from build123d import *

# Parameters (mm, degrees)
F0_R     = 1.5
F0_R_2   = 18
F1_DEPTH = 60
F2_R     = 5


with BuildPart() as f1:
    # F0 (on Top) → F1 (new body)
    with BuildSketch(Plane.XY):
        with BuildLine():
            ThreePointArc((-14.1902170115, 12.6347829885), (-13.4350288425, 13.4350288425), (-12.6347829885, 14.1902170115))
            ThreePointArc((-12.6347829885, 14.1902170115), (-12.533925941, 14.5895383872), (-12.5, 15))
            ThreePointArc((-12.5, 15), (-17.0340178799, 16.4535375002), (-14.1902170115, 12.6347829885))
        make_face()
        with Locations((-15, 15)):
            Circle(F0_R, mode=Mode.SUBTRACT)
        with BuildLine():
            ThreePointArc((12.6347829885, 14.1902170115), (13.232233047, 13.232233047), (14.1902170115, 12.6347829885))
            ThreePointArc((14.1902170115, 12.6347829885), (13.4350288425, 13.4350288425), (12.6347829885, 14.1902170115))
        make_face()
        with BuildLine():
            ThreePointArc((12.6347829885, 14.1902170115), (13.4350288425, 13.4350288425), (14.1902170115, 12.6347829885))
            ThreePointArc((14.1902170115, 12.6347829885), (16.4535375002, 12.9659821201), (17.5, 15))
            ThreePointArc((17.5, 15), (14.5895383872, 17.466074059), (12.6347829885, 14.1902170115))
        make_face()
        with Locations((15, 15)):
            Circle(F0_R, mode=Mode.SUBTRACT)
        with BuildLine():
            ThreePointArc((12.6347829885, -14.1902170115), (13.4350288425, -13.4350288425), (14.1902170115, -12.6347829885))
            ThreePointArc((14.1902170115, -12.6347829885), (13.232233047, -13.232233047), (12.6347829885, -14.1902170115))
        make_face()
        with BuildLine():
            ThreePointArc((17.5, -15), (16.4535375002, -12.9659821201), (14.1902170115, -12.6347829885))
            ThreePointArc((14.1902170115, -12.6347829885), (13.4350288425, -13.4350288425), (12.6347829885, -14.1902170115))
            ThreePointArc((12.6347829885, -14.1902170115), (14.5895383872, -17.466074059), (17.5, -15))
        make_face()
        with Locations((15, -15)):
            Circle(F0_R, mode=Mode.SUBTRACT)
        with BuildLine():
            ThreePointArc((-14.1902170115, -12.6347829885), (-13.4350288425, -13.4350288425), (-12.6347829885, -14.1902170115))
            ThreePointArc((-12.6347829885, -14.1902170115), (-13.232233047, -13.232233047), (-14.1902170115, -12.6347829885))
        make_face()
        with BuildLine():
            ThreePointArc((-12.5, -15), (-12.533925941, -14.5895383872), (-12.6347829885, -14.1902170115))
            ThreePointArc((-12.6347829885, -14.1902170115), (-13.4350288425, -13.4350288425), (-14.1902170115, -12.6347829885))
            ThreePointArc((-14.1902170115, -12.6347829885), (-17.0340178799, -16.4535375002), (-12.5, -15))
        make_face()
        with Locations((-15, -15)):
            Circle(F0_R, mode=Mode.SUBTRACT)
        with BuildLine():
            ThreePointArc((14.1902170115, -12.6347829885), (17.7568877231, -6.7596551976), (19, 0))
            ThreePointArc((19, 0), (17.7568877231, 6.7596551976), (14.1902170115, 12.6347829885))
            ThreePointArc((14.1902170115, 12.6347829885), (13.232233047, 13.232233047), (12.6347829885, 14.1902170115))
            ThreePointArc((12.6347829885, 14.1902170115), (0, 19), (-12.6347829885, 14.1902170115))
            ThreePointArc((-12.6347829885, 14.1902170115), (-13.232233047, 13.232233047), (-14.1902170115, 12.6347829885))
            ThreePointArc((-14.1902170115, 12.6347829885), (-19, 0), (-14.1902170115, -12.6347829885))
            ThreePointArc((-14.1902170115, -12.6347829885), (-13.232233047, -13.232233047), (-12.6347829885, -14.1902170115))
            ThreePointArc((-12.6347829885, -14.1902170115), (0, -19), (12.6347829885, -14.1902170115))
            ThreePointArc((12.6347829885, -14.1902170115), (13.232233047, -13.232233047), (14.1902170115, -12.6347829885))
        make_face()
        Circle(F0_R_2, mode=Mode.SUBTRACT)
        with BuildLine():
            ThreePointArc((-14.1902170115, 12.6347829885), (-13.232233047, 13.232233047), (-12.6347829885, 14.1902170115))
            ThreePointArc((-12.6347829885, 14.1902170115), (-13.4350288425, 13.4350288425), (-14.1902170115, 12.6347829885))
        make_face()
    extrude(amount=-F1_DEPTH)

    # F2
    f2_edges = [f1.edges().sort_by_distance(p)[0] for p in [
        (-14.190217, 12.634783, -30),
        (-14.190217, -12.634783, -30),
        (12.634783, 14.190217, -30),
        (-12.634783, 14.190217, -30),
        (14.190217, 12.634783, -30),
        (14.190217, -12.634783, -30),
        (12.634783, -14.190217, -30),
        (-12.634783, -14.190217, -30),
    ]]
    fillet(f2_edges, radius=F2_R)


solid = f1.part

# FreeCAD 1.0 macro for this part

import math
import FreeCAD as App
import Part
import Sketcher
Q = App.Units.Quantity


def edges_at(feature, points):
    """Names of the edges that pass closest to the given points."""
    edges = feature.Shape.Edges
    near = lambda p: min(range(len(edges)), key=lambda i: edges[i].distToShape(Part.Vertex(*p))[0])
    return sorted({f"Edge{near(p) + 1}" for p in points})

doc = App.newDocument("Part")
body = doc.addObject("PartDesign::Body", "Body")

sketch1 = body.newObject("Sketcher::SketchObject", "Sketch")
sketch1.AttachmentSupport = (doc.getObject("XY_Plane"), [""])
sketch1.MapMode = "FlatFace"
sketch1.addGeometry(Part.ArcOfCircle(Part.Circle(App.Vector(-15, 15, 0), App.Vector(0, 0, 1), 2.5), math.radians(0), math.radians(288.899744)), False)
sketch1.addGeometry(Part.ArcOfCircle(Part.Circle(App.Vector(0, 0, 0), App.Vector(0, 0, 1), 19), math.radians(138.318551), math.radians(221.681449)), False)
sketch1.addGeometry(Part.ArcOfCircle(Part.Circle(App.Vector(-15, -15, 0), App.Vector(0, 0, 1), 2.5), math.radians(71.100256), math.radians(360)), False)
sketch1.addGeometry(Part.ArcOfCircle(Part.Circle(App.Vector(-15, -15, 0), App.Vector(0, 0, 1), 2.5), math.radians(0), math.radians(18.899744)), False)
sketch1.addGeometry(Part.ArcOfCircle(Part.Circle(App.Vector(0, 0, 0), App.Vector(0, 0, 1), 19), math.radians(-131.681449), math.radians(-48.318551)), False)
sketch1.addGeometry(Part.ArcOfCircle(Part.Circle(App.Vector(15, -15, 0), App.Vector(0, 0, 1), 2.5), math.radians(161.100256), math.radians(360)), False)
sketch1.addGeometry(Part.ArcOfCircle(Part.Circle(App.Vector(15, -15, 0), App.Vector(0, 0, 1), 2.5), math.radians(0), math.radians(108.899744)), False)
sketch1.addGeometry(Part.ArcOfCircle(Part.Circle(App.Vector(0, 0, 0), App.Vector(0, 0, 1), 19), math.radians(-41.681449), math.radians(0)), False)
sketch1.addGeometry(Part.ArcOfCircle(Part.Circle(App.Vector(0, 0, 0), App.Vector(0, 0, 1), 19), math.radians(0), math.radians(41.681449)), False)
sketch1.addGeometry(Part.ArcOfCircle(Part.Circle(App.Vector(15, 15, 0), App.Vector(0, 0, 1), 2.5), math.radians(-108.899744), math.radians(0)), False)
sketch1.addGeometry(Part.ArcOfCircle(Part.Circle(App.Vector(15, 15, 0), App.Vector(0, 0, 1), 2.5), math.radians(0), math.radians(198.899744)), False)
sketch1.addGeometry(Part.ArcOfCircle(Part.Circle(App.Vector(0, 0, 0), App.Vector(0, 0, 1), 19), math.radians(48.318551), math.radians(131.681449)), False)
sketch1.addGeometry(Part.ArcOfCircle(Part.Circle(App.Vector(-15, 15, 0), App.Vector(0, 0, 1), 2.5), math.radians(-18.899744), math.radians(0)), False)
sketch1.addGeometry(Part.Circle(App.Vector(-15, 15, 0), App.Vector(0, 0, 1), 1.5), False)
sketch1.addGeometry(Part.Circle(App.Vector(15, 15, 0), App.Vector(0, 0, 1), 1.5), False)
sketch1.addGeometry(Part.Circle(App.Vector(-15, -15, 0), App.Vector(0, 0, 1), 1.5), False)
sketch1.addGeometry(Part.Circle(App.Vector(15, -15, 0), App.Vector(0, 0, 1), 1.5), False)
sketch1.addGeometry(Part.Circle(App.Vector(0, 0, 0), App.Vector(0, 0, 1), 18), False)
sketch1.addConstraint(Sketcher.Constraint("Coincident", 0, 2, 1, 1))
sketch1.addConstraint(Sketcher.Constraint("Coincident", 1, 2, 2, 1))
sketch1.addConstraint(Sketcher.Constraint("Tangent", 2, 2, 3, 1))
sketch1.addConstraint(Sketcher.Constraint("Coincident", 3, 2, 4, 1))
sketch1.addConstraint(Sketcher.Constraint("Coincident", 4, 2, 5, 1))
sketch1.addConstraint(Sketcher.Constraint("Tangent", 5, 2, 6, 1))
sketch1.addConstraint(Sketcher.Constraint("Coincident", 6, 2, 7, 1))
sketch1.addConstraint(Sketcher.Constraint("Tangent", 7, 2, 8, 1))
sketch1.addConstraint(Sketcher.Constraint("Coincident", 8, 2, 9, 1))
sketch1.addConstraint(Sketcher.Constraint("Tangent", 9, 2, 10, 1))
sketch1.addConstraint(Sketcher.Constraint("Coincident", 10, 2, 11, 1))
sketch1.addConstraint(Sketcher.Constraint("Coincident", 11, 2, 12, 1))
sketch1.addConstraint(Sketcher.Constraint("Tangent", 12, 2, 0, 1))
sketch1.addConstraint(Sketcher.Constraint("Coincident", 1, 3, -1, 1))
sketch1.addConstraint(Sketcher.Constraint("Coincident", 4, 3, -1, 1))
sketch1.addConstraint(Sketcher.Constraint("Coincident", 7, 3, -1, 1))
sketch1.addConstraint(Sketcher.Constraint("Coincident", 11, 3, -1, 1))
sketch1.addConstraint(Sketcher.Constraint("Coincident", 17, 3, -1, 1))
sketch1.addConstraint(Sketcher.Constraint("Coincident", 13, 3, 0, 3))
sketch1.addConstraint(Sketcher.Constraint("Coincident", 14, 3, 9, 3))
sketch1.addConstraint(Sketcher.Constraint("Coincident", 15, 3, 2, 3))
sketch1.addConstraint(Sketcher.Constraint("Coincident", 16, 3, 5, 3))
sketch1.addConstraint(Sketcher.Constraint("Equal", 0, 2))
sketch1.addConstraint(Sketcher.Constraint("Equal", 2, 3))
sketch1.addConstraint(Sketcher.Constraint("Equal", 1, 4))
sketch1.addConstraint(Sketcher.Constraint("Equal", 3, 5))
sketch1.addConstraint(Sketcher.Constraint("Equal", 5, 6))
sketch1.addConstraint(Sketcher.Constraint("Equal", 4, 7))
sketch1.addConstraint(Sketcher.Constraint("Equal", 7, 8))
sketch1.addConstraint(Sketcher.Constraint("Equal", 6, 9))
sketch1.addConstraint(Sketcher.Constraint("Equal", 9, 10))
sketch1.addConstraint(Sketcher.Constraint("Equal", 8, 11))
sketch1.addConstraint(Sketcher.Constraint("Equal", 10, 12))
sketch1.addConstraint(Sketcher.Constraint("Equal", 13, 14))
sketch1.addConstraint(Sketcher.Constraint("Equal", 14, 15))
sketch1.addConstraint(Sketcher.Constraint("Equal", 15, 16))
sketch1.addConstraint(Sketcher.Constraint("Symmetric", 0, 3, 5, 3, -1, 1))
sketch1.addConstraint(Sketcher.Constraint("Symmetric", 2, 3, 9, 3, -1, 1))
sketch1.addConstraint(Sketcher.Constraint("Symmetric", 2, 3, 5, 3, -2))
sketch1.addConstraint(Sketcher.Constraint("PointOnObject", 7, 2, -1))
sketch1.addConstraint(Sketcher.Constraint("Horizontal", 16, 3, 2, 2))
sketch1.addConstraint(Sketcher.Constraint("Horizontal", 2, 2, 5, 2))
sketch1.addConstraint(Sketcher.Constraint("Horizontal", 14, 3, 9, 2))
sketch1.addConstraint(Sketcher.Constraint("Horizontal", 9, 2, 12, 2))
sketch1.addConstraint(Sketcher.Constraint("Diameter", 13, Q("3 mm")))
sketch1.addConstraint(Sketcher.Constraint("Diameter", 17, Q("36 mm")))
sketch1.addConstraint(Sketcher.Constraint("Radius", 1, Q("19 mm")))
sketch1.addConstraint(Sketcher.Constraint("Radius", 0, Q("2.5 mm")))
sketch1.addConstraint(Sketcher.Constraint("DistanceX", 0, 3, -1, 1, Q("15 mm")))
sketch1.addConstraint(Sketcher.Constraint("DistanceY", -1, 1, 0, 3, Q("15 mm")))
pad1 = body.newObject("PartDesign::Pad", "Pad")
pad1.Profile = sketch1
pad1.Length = 60
pad1.Reversed = True
doc.recompute()

fillet = body.newObject("PartDesign::Fillet", "Fillet")
fillet.Base = (pad1, edges_at(pad1, [
    (-14.19, 12.635, -30),
    (-14.19, -12.635, -30),
    (12.635, 14.19, -30),
    (-12.635, 14.19, -30),
    (14.19, 12.635, -30),
    (14.19, -12.635, -30),
    (12.635, -14.19, -30),
    (-12.635, -14.19, -30),
]))
fillet.Radius = 5

doc.recompute()
